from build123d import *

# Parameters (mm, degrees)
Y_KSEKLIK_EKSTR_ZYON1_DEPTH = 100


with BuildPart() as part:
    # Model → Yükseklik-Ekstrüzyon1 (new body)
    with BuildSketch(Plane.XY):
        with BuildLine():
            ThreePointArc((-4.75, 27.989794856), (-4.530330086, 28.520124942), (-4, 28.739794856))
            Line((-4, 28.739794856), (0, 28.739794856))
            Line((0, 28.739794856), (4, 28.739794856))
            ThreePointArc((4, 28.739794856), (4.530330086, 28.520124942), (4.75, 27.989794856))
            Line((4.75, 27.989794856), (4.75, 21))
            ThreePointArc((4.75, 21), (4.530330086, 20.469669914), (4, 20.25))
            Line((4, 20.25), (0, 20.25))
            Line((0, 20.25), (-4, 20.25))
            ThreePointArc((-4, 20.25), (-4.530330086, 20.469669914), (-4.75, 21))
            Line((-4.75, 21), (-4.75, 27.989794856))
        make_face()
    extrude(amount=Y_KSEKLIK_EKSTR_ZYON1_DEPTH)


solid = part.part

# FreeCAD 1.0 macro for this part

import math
import FreeCAD as App
import Part
import Sketcher

doc = App.newDocument("Part")
body = doc.addObject("PartDesign::Body", "Body")

# Sketch on XY plane
sketch1 = body.newObject("Sketcher::SketchObject", "Sketch")
sketch1.AttachmentSupport = (doc.getObject("XY_Plane"), [""])
sketch1.MapMode = "FlatFace"
sketch1.addGeometry([
    Part.ArcOfCircle(Part.Circle(App.Vector(-4, 27.989795, 0), App.Vector(0, 0, 1), 0.75), math.radians(90), math.radians(180)),  # 0
    Part.LineSegment(App.Vector(-4.75, 27.989795, 0), App.Vector(-4.75, 21, 0)),  # 1
    Part.ArcOfCircle(Part.Circle(App.Vector(-4, 21, 0), App.Vector(0, 0, 1), 0.75), math.radians(180), math.radians(270)),  # 2
    Part.LineSegment(App.Vector(-4, 20.25, 0), App.Vector(4, 20.25, 0)),  # 3
    Part.ArcOfCircle(Part.Circle(App.Vector(4, 21, 0), App.Vector(0, 0, 1), 0.75), math.radians(-90), math.radians(0)),  # 4
    Part.LineSegment(App.Vector(4.75, 21, 0), App.Vector(4.75, 27.989795, 0)),  # 5
    Part.ArcOfCircle(Part.Circle(App.Vector(4, 27.989795, 0), App.Vector(0, 0, 1), 0.75), math.radians(0), math.radians(90)),  # 6
    Part.LineSegment(App.Vector(4, 28.739795, 0), App.Vector(-4, 28.739795, 0)),  # 7
], False)
sketch1.addConstraint([
    Sketcher.Constraint("Tangent", 0, 2, 1, 1),
    Sketcher.Constraint("Tangent", 1, 2, 2, 1),
    Sketcher.Constraint("Tangent", 2, 2, 3, 1),
    Sketcher.Constraint("Tangent", 3, 2, 4, 1),
    Sketcher.Constraint("Tangent", 4, 2, 5, 1),
    Sketcher.Constraint("Tangent", 5, 2, 6, 1),
    Sketcher.Constraint("Tangent", 6, 2, 7, 1),
    Sketcher.Constraint("Tangent", 7, 2, 0, 1),
    Sketcher.Constraint("Vertical", 1),
    Sketcher.Constraint("Horizontal", 3),
    Sketcher.Constraint("Vertical", 5),
    Sketcher.Constraint("Horizontal", 7),
    Sketcher.Constraint("Equal", 0, 2),
    Sketcher.Constraint("Equal", 2, 4),
    Sketcher.Constraint("Equal", 4, 6),
    Sketcher.Constraint("DistanceX", 3, 1, 3, 2, 8.0),
    Sketcher.Constraint("Radius", 0, 0.75),
    Sketcher.Constraint("DistanceX", 0, 3, -1, 1, 4.0),
    Sketcher.Constraint("DistanceY", -1, 1, 2, 3, 21.0),
    Sketcher.Constraint("DistanceY", 1, 2, 1, 1, 6.989795),
])
pad1 = body.newObject("PartDesign::Pad", "Pad")
pad1.Profile = sketch1
pad1.Length = 100

doc.recompute()
